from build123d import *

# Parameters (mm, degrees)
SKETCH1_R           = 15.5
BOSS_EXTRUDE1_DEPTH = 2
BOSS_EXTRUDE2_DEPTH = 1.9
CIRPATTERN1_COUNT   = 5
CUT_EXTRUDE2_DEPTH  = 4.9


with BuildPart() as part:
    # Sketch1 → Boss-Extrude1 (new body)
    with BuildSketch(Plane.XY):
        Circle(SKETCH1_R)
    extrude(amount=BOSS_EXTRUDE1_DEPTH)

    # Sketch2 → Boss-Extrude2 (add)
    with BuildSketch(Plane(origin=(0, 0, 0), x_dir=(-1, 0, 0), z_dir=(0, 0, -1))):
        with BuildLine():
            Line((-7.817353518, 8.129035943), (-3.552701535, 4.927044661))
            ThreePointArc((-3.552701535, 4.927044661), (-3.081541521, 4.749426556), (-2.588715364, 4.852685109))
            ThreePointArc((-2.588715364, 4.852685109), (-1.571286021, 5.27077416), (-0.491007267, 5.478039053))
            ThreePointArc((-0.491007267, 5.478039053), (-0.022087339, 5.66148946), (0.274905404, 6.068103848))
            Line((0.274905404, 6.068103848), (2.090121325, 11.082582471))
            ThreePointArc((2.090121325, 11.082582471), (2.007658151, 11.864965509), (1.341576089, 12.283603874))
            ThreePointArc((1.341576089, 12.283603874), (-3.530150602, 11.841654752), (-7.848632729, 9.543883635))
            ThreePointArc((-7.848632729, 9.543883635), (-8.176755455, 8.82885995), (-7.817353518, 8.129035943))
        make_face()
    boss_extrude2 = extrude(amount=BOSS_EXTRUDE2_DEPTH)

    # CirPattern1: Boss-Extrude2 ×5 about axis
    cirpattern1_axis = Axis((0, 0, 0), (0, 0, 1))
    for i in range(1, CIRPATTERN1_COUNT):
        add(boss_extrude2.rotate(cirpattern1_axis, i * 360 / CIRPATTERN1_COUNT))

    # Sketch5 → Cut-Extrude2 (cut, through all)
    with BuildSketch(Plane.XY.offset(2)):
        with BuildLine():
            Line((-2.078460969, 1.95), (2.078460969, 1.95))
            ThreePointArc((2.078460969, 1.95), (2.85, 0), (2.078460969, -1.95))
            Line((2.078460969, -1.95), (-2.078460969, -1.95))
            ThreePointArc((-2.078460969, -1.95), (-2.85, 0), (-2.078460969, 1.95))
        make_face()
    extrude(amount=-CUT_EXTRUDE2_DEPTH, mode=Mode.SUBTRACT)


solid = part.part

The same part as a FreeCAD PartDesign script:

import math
import FreeCAD as App
import Part
import Sketcher
from FreeCAD import Vector
Q = App.Units.Quantity

doc = App.newDocument("Part")
body = doc.addObject("PartDesign::Body", "Body")

# Sketch on XY plane
sketch1 = doc.addObject("Sketcher::SketchObject", "Sketch")
body.addObject(sketch1)
sketch1.AttachmentSupport = (doc.XY_Plane, [""])
sketch1.MapMode = "FlatFace"
sketch1.addGeometry(Part.Circle(Vector(0, 0, 0), Vector(0, 0, 1), 16), False)
sketch1.addConstraint(Sketcher.Constraint("Coincident", 0, 3, -1, 1))
sketch1.addConstraint(Sketcher.Constraint("Diameter", 0, 31.0))
pad1 = doc.addObject("PartDesign::Pad", "Pad")
body.addObject(pad1)
pad1.Profile = sketch1
pad1.Length = 2

# Sketch on XY plane
sketch2 = doc.addObject("Sketcher::SketchObject", "Sketch001")
body.addObject(sketch2)
sketch2.AttachmentSupport = (doc.XY_Plane, [""])
sketch2.MapMode = "FlatFace"
sketch2.addGeometry(Part.LineSegment(Vector(7.8, 8.1, 0), Vector(3.6, 4.9, 0)), False)
sketch2.addGeometry(Part.ArcOfCircle(Part.Circle(Vector(3, 5.6, 0), Vector(0, 0, 1), 0.9), math.radians(-118), math.radians(-53)), False)
sketch2.addGeometry(Part.ArcOfCircle(Part.Circle(Vector(0, 0, 0), Vector(0, 0, 1), 5.5), math.radians(62), math.radians(85)), False)
sketch2.addGeometry(Part.ArcOfCircle(Part.Circle(Vector(0.6, 6.4, 0), Vector(0, 0, 1), 0.9), math.radians(-160), math.radians(-95)), False)
sketch2.addGeometry(Part.LineSegment(Vector(-0.3, 6.1, 0), Vector(-2.1, 11.1, 0)), False)
sketch2.addGeometry(Part.ArcOfCircle(Part.Circle(Vector(-1.2, 11.4, 0), Vector(0, 0, 1), 0.9), math.radians(96), math.radians(200)), False)
sketch2.addGeometry(Part.ArcOfCircle(Part.Circle(Vector(0, 0, 0), Vector(0, 0, 1), 12.4), math.radians(51), math.radians(96)), False)
sketch2.addGeometry(Part.ArcOfCircle(Part.Circle(Vector(7.3, 8.8, 0), Vector(0, 0, 1), 0.9), math.radians(-53), math.radians(51)), False)
sketch2.addConstraint(Sketcher.Constraint("Tangent", 0, 2, 1, 2))
sketch2.addConstraint(Sketcher.Constraint("Tangent", 1, 1, 2, 1))
sketch2.addConstraint(Sketcher.Constraint("Tangent", 2, 2, 3, 2))
sketch2.addConstraint(Sketcher.Constraint("Tangent", 3, 1, 4, 1))
sketch2.addConstraint(Sketcher.Constraint("Tangent", 4, 2, 5, 2))
sketch2.addConstraint(Sketcher.Constraint("Tangent", 5, 1, 6, 2))
sketch2.addConstraint(Sketcher.Constraint("Tangent", 6, 1, 7, 2))
sketch2.addConstraint(Sketcher.Constraint("Tangent", 7, 1, 0, 1))
sketch2.addConstraint(Sketcher.Constraint("Coincident", 2, 3, -1, 1))
sketch2.addConstraint(Sketcher.Constraint("Coincident", 6, 3, -1, 1))
sketch2.addConstraint(Sketcher.Constraint("Equal", 1, 3))
sketch2.addConstraint(Sketcher.Constraint("Equal", 3, 5))
sketch2.addConstraint(Sketcher.Constraint("Equal", 5, 7))
sketch2.addConstraint(Sketcher.Constraint("Equal", 0, 4))
sketch2.addConstraint(Sketcher.Constraint("Radius", 1, 0.9))
sketch2.addConstraint(Sketcher.Constraint("Radius", 2, 5.5))
sketch2.addConstraint(Sketcher.Constraint("Angle", 0, Q("-143.1 deg")))
sketch2.addConstraint(Sketcher.Constraint("Angle", 4, Q("109.9 deg")))
sketch2.addConstraint(Sketcher.Constraint("Radius", 6, 12.356648))
sketch2.addConstraint(Sketcher.Constraint("DistanceX", -1, 1, 0, 2, 3.552702))
pad2 = doc.addObject("PartDesign::Pad", "Pad001")
body.addObject(pad2)
pad2.Profile = sketch2
pad2.Length = 1.9
pad2.Reversed = True
doc.recompute()

polarpattern = doc.addObject("PartDesign::PolarPattern", "PolarPattern")
body.addObject(polarpattern)
polarpattern.Originals = [pad2]
polarpattern.Axis = (doc.Z_Axis, [""])
polarpattern.Angle = 360
polarpattern.Occurrences = 5
body.Tip = polarpattern

# Sketch on XY plane
sketch3 = doc.addObject("Sketcher::SketchObject", "Sketch002")
body.addObject(sketch3)
sketch3.AttachmentSupport = (doc.XY_Plane, [""])
sketch3.MapMode = "FlatFace"
sketch3.AttachmentOffset = App.Placement(Vector(0, 0, 2), App.Rotation())
sketch3.addGeometry(Part.LineSegment(Vector(2.1, 1.9, 0), Vector(-2.1, 1.9, 0)), False)
sketch3.addGeometry(Part.ArcOfCircle(Part.Circle(Vector(0, 0, 0), Vector(0, 0, 1), 2.9), math.radians(137), math.radians(223)), False)
sketch3.addGeometry(Part.LineSegment(Vector(-2.1, -1.9, 0), Vector(2.1, -1.9, 0)), False)
sketch3.addGeometry(Part.ArcOfCircle(Part.Circle(Vector(0, 0, 0), Vector(0, 0, 1), 2.9), math.radians(-43), math.radians(43)), False)
sketch3.addConstraint(Sketcher.Constraint("Coincident", 0, 2, 1, 1))
sketch3.addConstraint(Sketcher.Constraint("Coincident", 1, 2, 2, 1))
sketch3.addConstraint(Sketcher.Constraint("Coincident", 2, 2, 3, 1))
sketch3.addConstraint(Sketcher.Constraint("Coincident", 3, 2, 0, 1))
sketch3.addConstraint(Sketcher.Constraint("Horizontal", 0))
sketch3.addConstraint(Sketcher.Constraint("Horizontal", 2))
sketch3.addConstraint(Sketcher.Constraint("Coincident", 1, 3, -1, 1))
sketch3.addConstraint(Sketcher.Constraint("Coincident", 3, 3, -1, 1))
sketch3.addConstraint(Sketcher.Constraint("Equal", 1, 3))
sketch3.addConstraint(Sketcher.Constraint("Vertical", 0, 2, 1, 2))
sketch3.addConstraint(Sketcher.Constraint("Radius", 1, 2.85))
sketch3.addConstraint(Sketcher.Constraint("DistanceY", 1, 2, 0, 2, 3.9))
pocket1 = doc.addObject("PartDesign::Pocket", "Pocket")
body.addObject(pocket1)
pocket1.Profile = sketch3
pocket1.Type = "ThroughAll"

doc.recompute()
